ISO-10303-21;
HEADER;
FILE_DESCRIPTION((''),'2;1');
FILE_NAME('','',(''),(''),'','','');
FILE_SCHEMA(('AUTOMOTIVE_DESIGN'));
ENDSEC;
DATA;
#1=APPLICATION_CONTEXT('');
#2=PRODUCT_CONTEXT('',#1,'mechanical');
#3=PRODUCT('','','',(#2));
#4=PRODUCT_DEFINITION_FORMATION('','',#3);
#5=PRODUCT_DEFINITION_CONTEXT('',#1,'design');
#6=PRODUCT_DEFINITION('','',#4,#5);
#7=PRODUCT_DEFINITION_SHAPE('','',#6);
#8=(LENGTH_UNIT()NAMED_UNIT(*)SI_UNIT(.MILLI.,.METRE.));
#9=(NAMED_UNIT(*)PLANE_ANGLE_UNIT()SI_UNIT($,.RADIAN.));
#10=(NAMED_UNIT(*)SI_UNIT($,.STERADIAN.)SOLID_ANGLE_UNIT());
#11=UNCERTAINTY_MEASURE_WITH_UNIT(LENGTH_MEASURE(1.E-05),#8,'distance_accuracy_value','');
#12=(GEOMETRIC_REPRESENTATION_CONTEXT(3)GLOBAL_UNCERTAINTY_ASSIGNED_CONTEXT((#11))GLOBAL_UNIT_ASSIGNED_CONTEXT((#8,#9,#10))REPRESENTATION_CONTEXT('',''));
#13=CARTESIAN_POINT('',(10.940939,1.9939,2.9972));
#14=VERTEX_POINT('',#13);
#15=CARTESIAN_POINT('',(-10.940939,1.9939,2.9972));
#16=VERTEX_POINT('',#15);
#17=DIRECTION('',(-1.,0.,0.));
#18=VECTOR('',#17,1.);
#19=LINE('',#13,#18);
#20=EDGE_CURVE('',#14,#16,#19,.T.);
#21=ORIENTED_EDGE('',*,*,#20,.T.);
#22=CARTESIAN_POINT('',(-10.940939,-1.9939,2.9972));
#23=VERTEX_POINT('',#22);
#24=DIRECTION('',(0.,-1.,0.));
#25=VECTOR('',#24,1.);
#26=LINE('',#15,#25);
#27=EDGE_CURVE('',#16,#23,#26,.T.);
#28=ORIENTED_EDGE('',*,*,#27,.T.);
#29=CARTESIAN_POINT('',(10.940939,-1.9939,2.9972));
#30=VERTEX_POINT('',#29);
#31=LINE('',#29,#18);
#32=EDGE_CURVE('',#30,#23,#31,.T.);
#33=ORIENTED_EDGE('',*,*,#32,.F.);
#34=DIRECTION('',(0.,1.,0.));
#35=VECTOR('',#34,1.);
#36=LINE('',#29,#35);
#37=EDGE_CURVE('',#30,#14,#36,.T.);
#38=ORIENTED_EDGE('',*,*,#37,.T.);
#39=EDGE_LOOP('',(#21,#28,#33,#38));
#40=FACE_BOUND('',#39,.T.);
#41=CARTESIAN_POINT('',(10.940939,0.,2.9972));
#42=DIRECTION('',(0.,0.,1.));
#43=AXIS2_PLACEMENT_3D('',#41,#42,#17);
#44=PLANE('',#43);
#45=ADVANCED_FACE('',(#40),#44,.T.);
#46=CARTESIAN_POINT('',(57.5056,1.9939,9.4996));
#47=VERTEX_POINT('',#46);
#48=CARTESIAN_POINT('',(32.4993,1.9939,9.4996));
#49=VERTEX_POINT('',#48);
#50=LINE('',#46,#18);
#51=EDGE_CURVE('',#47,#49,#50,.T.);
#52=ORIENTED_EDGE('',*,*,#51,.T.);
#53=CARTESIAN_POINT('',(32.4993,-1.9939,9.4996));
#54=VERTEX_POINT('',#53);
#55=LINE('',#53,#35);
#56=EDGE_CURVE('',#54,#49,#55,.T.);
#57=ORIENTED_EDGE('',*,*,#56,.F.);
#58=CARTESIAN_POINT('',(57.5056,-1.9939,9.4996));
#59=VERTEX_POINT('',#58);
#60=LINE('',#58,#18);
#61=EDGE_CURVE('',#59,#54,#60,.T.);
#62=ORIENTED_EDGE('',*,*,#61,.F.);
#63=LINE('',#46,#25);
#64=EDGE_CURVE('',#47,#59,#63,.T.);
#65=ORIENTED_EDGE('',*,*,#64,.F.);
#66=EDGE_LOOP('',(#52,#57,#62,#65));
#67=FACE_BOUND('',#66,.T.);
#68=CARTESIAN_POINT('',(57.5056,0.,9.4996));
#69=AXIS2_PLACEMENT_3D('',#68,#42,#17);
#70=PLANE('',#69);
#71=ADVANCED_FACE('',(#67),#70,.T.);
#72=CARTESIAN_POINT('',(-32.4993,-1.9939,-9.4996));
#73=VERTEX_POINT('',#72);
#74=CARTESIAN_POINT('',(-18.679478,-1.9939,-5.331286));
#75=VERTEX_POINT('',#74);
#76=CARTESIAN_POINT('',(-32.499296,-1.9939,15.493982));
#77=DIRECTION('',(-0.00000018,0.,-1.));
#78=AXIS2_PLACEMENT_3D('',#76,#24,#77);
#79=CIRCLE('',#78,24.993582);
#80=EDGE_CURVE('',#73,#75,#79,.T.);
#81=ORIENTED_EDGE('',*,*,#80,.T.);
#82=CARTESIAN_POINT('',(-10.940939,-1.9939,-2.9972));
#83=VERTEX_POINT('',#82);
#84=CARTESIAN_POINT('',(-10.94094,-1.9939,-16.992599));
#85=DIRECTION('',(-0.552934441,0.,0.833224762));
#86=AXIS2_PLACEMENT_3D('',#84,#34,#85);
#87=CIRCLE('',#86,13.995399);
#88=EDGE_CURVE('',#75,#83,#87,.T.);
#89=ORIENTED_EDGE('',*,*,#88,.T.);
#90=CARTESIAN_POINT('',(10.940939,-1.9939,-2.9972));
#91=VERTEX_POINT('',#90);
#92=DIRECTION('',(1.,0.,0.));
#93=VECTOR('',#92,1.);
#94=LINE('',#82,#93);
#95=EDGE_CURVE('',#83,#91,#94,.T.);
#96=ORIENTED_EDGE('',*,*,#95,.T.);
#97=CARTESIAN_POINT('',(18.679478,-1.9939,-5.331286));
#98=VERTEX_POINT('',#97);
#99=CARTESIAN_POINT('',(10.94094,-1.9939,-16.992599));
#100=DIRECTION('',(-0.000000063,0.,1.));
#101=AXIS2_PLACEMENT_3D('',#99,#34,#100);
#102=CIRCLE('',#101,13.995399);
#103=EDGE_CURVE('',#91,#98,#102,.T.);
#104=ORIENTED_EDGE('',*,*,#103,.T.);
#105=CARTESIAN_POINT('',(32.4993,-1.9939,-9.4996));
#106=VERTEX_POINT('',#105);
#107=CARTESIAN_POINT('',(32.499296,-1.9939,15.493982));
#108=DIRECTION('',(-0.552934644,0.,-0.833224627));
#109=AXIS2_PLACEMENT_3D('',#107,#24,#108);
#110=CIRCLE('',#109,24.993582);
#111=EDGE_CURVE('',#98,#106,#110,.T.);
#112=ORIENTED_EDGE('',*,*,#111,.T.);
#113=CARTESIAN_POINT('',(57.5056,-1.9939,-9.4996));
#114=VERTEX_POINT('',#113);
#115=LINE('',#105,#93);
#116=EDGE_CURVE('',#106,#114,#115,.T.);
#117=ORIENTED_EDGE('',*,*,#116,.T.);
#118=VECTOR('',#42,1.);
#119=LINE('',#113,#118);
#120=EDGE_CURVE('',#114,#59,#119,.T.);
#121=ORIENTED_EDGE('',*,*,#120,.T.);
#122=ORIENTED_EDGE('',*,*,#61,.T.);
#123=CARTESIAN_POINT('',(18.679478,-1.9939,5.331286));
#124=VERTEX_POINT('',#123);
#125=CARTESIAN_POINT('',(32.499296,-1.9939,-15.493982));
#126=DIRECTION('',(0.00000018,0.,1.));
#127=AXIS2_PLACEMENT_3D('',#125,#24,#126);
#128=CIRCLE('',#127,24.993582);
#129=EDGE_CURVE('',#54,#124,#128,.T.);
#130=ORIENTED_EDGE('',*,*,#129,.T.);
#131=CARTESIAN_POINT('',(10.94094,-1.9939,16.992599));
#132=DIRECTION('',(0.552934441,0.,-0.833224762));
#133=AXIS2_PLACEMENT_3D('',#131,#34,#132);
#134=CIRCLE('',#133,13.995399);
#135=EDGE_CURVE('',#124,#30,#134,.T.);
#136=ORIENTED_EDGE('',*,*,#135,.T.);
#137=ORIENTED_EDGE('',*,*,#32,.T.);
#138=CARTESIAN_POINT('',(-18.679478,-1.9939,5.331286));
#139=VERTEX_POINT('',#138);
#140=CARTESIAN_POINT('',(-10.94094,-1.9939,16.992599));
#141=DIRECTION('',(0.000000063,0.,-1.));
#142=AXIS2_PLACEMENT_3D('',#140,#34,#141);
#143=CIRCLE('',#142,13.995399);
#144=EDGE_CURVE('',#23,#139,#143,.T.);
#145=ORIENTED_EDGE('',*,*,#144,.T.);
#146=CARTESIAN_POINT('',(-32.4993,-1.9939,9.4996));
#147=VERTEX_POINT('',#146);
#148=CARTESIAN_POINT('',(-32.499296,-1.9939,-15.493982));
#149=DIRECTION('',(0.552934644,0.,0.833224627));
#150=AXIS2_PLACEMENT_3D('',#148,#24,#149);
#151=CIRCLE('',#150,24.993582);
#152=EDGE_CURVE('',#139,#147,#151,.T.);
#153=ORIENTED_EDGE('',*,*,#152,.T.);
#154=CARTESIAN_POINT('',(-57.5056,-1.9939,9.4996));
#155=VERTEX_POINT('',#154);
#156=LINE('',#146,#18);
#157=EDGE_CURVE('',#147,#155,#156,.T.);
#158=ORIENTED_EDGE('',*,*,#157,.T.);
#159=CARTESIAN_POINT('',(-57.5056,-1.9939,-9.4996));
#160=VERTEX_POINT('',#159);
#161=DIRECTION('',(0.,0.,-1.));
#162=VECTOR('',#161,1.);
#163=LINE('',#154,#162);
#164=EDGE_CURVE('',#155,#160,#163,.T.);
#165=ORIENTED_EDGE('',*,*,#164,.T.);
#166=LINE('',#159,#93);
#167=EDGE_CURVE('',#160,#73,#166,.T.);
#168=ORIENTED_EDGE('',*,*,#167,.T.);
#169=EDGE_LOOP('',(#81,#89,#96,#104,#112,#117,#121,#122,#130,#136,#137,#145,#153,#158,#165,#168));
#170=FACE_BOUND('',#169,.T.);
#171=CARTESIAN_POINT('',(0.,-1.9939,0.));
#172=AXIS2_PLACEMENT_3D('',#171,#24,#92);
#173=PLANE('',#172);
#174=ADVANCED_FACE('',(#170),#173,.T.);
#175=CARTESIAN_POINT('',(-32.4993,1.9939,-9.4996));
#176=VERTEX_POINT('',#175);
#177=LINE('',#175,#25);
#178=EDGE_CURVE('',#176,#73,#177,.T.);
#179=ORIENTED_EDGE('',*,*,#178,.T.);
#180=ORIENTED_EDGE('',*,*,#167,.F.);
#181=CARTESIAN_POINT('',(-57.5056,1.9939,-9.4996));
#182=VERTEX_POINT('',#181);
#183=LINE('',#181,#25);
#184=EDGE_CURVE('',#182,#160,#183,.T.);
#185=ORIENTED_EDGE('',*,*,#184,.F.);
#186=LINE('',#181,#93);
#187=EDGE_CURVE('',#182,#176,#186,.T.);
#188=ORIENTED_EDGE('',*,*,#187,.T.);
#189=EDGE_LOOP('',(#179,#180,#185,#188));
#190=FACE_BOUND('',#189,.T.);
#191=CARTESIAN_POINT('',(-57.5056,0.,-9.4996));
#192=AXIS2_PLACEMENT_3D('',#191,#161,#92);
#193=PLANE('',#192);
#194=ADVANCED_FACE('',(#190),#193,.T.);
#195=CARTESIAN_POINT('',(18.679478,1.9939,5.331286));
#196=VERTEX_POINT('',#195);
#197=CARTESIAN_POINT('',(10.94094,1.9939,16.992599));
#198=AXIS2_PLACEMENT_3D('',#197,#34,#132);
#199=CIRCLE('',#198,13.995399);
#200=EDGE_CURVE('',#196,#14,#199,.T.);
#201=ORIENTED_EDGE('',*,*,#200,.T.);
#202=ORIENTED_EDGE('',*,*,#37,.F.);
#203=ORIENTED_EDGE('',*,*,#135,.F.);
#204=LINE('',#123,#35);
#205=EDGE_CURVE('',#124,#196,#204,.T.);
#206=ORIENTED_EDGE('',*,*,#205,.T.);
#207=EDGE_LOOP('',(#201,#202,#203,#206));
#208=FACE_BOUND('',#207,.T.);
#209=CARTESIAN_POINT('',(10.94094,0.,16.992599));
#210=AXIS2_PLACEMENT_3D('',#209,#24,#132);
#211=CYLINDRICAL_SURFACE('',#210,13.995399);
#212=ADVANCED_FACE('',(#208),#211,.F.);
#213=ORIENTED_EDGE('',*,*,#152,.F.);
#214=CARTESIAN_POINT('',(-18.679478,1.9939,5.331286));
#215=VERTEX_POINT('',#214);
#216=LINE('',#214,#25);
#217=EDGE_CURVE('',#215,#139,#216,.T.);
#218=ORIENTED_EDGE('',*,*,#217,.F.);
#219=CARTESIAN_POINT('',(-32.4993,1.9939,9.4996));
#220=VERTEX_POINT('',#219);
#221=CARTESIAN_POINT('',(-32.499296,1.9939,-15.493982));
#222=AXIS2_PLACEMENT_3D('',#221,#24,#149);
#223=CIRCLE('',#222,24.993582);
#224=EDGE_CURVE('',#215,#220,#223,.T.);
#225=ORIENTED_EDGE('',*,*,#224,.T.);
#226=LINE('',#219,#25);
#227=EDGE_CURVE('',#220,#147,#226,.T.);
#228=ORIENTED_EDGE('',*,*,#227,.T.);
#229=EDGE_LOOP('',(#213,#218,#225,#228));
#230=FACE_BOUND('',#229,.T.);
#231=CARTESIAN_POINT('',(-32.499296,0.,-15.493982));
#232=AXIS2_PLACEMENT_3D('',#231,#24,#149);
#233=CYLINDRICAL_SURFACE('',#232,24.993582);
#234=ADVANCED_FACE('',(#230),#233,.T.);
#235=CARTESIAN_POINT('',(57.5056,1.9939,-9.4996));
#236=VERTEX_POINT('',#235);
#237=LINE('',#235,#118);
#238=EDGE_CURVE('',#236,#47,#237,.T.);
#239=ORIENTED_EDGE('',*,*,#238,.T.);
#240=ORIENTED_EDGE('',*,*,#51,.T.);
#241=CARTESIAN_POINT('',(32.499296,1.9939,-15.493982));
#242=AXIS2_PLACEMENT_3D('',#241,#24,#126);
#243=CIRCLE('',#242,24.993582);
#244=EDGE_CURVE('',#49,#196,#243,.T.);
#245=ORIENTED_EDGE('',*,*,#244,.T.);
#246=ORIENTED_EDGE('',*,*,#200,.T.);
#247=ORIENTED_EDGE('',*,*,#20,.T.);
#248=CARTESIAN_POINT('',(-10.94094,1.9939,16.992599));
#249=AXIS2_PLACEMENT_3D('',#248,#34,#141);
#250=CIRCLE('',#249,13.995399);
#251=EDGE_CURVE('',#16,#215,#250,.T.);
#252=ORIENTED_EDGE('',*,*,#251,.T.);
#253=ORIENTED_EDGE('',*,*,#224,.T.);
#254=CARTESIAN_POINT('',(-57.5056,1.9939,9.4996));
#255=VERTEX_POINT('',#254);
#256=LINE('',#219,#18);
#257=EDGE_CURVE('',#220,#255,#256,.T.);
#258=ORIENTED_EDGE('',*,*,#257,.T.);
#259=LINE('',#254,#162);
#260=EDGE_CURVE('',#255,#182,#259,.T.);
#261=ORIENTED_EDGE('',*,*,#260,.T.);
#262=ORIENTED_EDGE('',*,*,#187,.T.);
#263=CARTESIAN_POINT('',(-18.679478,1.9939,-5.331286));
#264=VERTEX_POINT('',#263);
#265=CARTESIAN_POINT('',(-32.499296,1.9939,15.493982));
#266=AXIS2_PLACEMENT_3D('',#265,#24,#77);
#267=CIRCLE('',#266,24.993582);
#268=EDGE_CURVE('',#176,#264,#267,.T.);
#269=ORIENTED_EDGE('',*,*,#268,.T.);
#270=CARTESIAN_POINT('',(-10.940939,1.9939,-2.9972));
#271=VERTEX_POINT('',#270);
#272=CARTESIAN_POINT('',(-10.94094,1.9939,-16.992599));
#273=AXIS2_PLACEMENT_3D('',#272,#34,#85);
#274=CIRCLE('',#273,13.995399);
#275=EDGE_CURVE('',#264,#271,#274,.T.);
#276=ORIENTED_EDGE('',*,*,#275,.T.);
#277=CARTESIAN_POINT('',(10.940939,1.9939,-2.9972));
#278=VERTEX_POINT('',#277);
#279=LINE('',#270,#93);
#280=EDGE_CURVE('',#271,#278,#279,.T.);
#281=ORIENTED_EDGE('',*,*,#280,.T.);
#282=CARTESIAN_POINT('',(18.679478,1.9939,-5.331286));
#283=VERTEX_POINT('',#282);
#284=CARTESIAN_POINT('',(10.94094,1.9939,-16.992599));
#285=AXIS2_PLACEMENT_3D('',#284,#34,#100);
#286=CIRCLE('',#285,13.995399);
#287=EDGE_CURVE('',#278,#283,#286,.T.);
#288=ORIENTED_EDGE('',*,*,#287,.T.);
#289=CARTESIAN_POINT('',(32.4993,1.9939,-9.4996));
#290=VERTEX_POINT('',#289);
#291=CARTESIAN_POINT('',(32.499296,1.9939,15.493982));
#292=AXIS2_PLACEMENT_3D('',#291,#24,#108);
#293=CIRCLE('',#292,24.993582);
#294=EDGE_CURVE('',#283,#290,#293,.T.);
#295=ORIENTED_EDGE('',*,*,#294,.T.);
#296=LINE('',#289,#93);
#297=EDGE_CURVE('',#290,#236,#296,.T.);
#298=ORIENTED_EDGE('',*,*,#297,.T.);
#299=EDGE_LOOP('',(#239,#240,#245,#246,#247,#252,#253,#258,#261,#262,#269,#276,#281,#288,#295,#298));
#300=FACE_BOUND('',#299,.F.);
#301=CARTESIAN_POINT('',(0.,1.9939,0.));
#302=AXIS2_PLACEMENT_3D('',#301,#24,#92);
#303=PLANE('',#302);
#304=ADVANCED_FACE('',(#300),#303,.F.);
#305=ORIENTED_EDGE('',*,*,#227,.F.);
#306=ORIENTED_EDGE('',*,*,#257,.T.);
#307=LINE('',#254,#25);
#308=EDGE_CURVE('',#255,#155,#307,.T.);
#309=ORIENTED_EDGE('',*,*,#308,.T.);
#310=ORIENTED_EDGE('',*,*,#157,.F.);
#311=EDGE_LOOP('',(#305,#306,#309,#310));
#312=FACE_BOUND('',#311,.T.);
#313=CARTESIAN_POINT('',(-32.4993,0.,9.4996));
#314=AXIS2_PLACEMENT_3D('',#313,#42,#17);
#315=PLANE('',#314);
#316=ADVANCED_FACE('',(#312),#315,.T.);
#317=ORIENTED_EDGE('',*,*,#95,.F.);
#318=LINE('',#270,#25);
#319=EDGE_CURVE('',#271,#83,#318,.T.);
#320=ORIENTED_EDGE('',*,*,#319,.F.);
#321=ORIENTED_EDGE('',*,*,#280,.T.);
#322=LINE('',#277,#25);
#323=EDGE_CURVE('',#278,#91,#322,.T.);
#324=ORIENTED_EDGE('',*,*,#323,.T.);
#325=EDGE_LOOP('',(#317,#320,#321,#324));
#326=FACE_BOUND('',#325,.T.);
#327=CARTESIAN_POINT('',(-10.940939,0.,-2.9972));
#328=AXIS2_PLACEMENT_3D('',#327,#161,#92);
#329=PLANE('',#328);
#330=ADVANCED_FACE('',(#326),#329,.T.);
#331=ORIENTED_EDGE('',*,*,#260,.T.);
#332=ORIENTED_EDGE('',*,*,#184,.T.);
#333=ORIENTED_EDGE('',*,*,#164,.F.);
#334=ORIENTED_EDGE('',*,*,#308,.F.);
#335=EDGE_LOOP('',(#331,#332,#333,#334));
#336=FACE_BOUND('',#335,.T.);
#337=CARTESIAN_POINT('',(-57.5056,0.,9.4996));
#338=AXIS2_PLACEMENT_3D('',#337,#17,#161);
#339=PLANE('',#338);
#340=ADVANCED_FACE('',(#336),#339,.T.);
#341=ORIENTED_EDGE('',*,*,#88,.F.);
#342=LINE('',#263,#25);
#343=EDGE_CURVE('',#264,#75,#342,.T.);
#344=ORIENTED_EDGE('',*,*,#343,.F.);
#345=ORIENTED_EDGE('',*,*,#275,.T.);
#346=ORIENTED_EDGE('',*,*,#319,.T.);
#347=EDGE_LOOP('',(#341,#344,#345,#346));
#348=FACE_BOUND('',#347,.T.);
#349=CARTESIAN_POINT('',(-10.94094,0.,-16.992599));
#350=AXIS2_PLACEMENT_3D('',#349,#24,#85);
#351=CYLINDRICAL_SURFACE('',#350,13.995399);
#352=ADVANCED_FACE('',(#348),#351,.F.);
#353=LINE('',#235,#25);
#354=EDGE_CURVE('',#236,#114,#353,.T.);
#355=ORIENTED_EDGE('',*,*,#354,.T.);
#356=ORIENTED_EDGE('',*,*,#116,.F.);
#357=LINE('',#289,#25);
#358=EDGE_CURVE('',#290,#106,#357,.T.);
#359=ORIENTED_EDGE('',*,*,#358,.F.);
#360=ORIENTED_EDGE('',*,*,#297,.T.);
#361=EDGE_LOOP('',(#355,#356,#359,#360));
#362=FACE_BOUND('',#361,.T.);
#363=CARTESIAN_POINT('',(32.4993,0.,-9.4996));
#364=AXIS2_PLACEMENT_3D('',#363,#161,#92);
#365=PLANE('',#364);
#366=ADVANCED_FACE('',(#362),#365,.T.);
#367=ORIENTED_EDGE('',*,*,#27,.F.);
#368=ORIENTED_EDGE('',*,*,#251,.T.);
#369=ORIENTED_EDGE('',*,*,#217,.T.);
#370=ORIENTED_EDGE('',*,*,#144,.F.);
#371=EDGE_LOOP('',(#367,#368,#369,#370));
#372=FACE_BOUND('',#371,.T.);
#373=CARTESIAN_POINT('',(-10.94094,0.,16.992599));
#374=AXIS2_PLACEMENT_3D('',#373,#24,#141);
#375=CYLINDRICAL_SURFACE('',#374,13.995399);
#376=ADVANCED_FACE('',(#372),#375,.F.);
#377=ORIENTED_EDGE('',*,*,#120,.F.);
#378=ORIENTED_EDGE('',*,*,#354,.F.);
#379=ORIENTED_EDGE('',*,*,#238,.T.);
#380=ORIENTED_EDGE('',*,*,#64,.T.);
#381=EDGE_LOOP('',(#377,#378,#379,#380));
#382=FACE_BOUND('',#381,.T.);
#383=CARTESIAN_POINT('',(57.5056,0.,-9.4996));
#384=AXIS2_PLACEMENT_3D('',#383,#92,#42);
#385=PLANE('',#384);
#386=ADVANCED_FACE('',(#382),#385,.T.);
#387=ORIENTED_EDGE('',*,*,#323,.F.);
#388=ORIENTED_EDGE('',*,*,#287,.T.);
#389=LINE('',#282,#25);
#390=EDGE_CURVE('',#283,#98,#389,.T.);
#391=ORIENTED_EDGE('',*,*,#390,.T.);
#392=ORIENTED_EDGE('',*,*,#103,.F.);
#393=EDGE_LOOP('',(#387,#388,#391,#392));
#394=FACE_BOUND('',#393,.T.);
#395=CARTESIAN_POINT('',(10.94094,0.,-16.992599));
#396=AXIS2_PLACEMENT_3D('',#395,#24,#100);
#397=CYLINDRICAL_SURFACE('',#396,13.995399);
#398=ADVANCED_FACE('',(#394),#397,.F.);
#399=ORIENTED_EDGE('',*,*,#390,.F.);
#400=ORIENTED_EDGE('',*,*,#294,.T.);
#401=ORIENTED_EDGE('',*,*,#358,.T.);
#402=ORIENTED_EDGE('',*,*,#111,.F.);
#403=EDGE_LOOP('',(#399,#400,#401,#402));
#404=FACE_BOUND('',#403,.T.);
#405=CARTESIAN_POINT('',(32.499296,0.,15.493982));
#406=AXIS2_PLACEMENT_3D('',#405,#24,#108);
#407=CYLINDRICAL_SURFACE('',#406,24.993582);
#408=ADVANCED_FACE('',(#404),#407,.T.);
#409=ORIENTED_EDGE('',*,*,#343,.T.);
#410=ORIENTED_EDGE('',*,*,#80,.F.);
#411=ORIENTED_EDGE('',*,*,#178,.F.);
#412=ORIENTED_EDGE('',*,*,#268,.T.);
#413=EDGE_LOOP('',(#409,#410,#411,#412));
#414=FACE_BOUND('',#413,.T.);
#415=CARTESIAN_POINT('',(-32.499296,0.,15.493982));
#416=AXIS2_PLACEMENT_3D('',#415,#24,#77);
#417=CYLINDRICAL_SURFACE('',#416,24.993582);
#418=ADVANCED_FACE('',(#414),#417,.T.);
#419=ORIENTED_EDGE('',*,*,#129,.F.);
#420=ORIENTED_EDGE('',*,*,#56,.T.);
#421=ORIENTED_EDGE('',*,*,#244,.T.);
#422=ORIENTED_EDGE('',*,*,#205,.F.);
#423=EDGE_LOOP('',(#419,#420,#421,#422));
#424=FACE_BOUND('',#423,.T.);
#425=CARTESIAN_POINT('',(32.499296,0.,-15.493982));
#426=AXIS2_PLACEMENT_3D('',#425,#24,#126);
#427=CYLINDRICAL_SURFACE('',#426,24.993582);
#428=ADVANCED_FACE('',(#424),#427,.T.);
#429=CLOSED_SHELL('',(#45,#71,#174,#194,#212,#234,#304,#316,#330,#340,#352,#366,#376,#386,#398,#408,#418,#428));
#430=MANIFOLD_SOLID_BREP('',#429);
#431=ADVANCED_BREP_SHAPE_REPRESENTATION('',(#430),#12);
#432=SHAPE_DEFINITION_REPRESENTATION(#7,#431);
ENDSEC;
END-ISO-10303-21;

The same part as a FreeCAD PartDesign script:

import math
import FreeCAD as App
import Part
import Sketcher

V = App.Vector
Q = App.Units.Quantity

doc = App.newDocument("Part")
body = doc.addObject("PartDesign::Body", "Body")

# Sketch on XZ plane
sketch1 = doc.addObject("Sketcher::SketchObject", "Sketch")
body.addObject(sketch1)
sketch1.AttachmentSupport = (doc.XZ_Plane, [""])
sketch1.MapMode = "FlatFace"
sketch1.addGeometry([
    Part.LineSegment(V(11, 3, 0), V(-11, 3, 0)),  # 0
    Part.ArcOfCircle(Part.Circle(V(-11, 17, 0), V(0, 0, 1), 14), math.radians(-124), math.radians(-90)),  # 1
    Part.ArcOfCircle(Part.Circle(V(-32, -15, 0), V(0, 0, 1), 25), math.radians(56), math.radians(90)),  # 2
    Part.LineSegment(V(-32, 9, 0), V(-58, 9, 0)),  # 3
    Part.LineSegment(V(-58, 9, 0), V(-58, -9, 0)),  # 4
    Part.LineSegment(V(-58, -9, 0), V(-32, -9, 0)),  # 5
    Part.ArcOfCircle(Part.Circle(V(-32, 15, 0), V(0, 0, 1), 25), math.radians(-90), math.radians(-56)),  # 6
    Part.ArcOfCircle(Part.Circle(V(-11, -17, 0), V(0, 0, 1), 14), math.radians(90), math.radians(124)),  # 7
    Part.LineSegment(V(-11, -3, 0), V(11, -3, 0)),  # 8
    Part.ArcOfCircle(Part.Circle(V(11, -17, 0), V(0, 0, 1), 14), math.radians(56), math.radians(90)),  # 9
    Part.ArcOfCircle(Part.Circle(V(32, 15, 0), V(0, 0, 1), 25), math.radians(-124), math.radians(-90)),  # 10
    Part.LineSegment(V(32, -9, 0), V(58, -9, 0)),  # 11
    Part.LineSegment(V(58, -9, 0), V(58, 9, 0)),  # 12
    Part.LineSegment(V(58, 9, 0), V(32, 9, 0)),  # 13
    Part.ArcOfCircle(Part.Circle(V(32, -15, 0), V(0, 0, 1), 25), math.radians(90), math.radians(124)),  # 14
    Part.ArcOfCircle(Part.Circle(V(11, 17, 0), V(0, 0, 1), 14), math.radians(-90), math.radians(-56)),  # 15
], False)
sketch1.addConstraint([
    Sketcher.Constraint("Tangent", 0, 2, 1, 2),
    Sketcher.Constraint("Tangent", 1, 1, 2, 1),
    Sketcher.Constraint("Tangent", 2, 2, 3, 1),
    Sketcher.Constraint("Coincident", 3, 2, 4, 1),
    Sketcher.Constraint("Coincident", 4, 2, 5, 1),
    Sketcher.Constraint("Tangent", 5, 2, 6, 1),
    Sketcher.Constraint("Tangent", 6, 2, 7, 2),
    Sketcher.Constraint("Tangent", 7, 1, 8, 1),
    Sketcher.Constraint("Tangent", 8, 2, 9, 2),
    Sketcher.Constraint("Tangent", 9, 1, 10, 1),
    Sketcher.Constraint("Tangent", 10, 2, 11, 1),
    Sketcher.Constraint("Coincident", 11, 2, 12, 1),
    Sketcher.Constraint("Coincident", 12, 2, 13, 1),
    Sketcher.Constraint("Tangent", 13, 2, 14, 1),
    Sketcher.Constraint("Tangent", 14, 2, 15, 2),
    Sketcher.Constraint("Tangent", 15, 1, 0, 1),
    Sketcher.Constraint("Horizontal", 0),
    Sketcher.Constraint("Horizontal", 3),
    Sketcher.Constraint("Vertical", 4),
    Sketcher.Constraint("Horizontal", 5),
    Sketcher.Constraint("Horizontal", 8),
    Sketcher.Constraint("Horizontal", 11),
    Sketcher.Constraint("Vertical", 12),
    Sketcher.Constraint("Horizontal", 13),
    Sketcher.Constraint("Equal", 2, 6),
    Sketcher.Constraint("Equal", 1, 7),
    Sketcher.Constraint("Equal", 7, 9),
    Sketcher.Constraint("Equal", 6, 10),
    Sketcher.Constraint("Equal", 10, 14),
    Sketcher.Constraint("Equal", 9, 15),
    Sketcher.Constraint("Symmetric", 1, 3, 9, 3, -1, 1),
    Sketcher.Constraint("Symmetric", 6, 3, 14, 3, -1, 1),
    Sketcher.Constraint("Symmetric", 3, 2, 11, 2, -1, 1),
    Sketcher.Constraint("Symmetric", 6, 3, 10, 3, -2),
    Sketcher.Constraint("Radius", 1, Q("0.551 in")),
    Sketcher.Constraint("DistanceY", 4, 2, 4, 1, Q("0.748 in")),
    Sketcher.Constraint("DistanceX", 3, 2, 3, 1, Q("0.9845 in")),
    Sketcher.Constraint("DistanceY", -1, 1, 1, 3, Q("0.669 in")),
    Sketcher.Constraint("DistanceX", 3, 2, -1, 1, Q("2.264 in")),
    Sketcher.Constraint("Radius", 2, 24.993582),
])
pad1 = doc.addObject("PartDesign::Pad", "Pad")
body.addObject(pad1)
pad1.Profile = sketch1
pad1.Length = Q("0.157 in")
pad1.Midplane = True

doc.recompute()
